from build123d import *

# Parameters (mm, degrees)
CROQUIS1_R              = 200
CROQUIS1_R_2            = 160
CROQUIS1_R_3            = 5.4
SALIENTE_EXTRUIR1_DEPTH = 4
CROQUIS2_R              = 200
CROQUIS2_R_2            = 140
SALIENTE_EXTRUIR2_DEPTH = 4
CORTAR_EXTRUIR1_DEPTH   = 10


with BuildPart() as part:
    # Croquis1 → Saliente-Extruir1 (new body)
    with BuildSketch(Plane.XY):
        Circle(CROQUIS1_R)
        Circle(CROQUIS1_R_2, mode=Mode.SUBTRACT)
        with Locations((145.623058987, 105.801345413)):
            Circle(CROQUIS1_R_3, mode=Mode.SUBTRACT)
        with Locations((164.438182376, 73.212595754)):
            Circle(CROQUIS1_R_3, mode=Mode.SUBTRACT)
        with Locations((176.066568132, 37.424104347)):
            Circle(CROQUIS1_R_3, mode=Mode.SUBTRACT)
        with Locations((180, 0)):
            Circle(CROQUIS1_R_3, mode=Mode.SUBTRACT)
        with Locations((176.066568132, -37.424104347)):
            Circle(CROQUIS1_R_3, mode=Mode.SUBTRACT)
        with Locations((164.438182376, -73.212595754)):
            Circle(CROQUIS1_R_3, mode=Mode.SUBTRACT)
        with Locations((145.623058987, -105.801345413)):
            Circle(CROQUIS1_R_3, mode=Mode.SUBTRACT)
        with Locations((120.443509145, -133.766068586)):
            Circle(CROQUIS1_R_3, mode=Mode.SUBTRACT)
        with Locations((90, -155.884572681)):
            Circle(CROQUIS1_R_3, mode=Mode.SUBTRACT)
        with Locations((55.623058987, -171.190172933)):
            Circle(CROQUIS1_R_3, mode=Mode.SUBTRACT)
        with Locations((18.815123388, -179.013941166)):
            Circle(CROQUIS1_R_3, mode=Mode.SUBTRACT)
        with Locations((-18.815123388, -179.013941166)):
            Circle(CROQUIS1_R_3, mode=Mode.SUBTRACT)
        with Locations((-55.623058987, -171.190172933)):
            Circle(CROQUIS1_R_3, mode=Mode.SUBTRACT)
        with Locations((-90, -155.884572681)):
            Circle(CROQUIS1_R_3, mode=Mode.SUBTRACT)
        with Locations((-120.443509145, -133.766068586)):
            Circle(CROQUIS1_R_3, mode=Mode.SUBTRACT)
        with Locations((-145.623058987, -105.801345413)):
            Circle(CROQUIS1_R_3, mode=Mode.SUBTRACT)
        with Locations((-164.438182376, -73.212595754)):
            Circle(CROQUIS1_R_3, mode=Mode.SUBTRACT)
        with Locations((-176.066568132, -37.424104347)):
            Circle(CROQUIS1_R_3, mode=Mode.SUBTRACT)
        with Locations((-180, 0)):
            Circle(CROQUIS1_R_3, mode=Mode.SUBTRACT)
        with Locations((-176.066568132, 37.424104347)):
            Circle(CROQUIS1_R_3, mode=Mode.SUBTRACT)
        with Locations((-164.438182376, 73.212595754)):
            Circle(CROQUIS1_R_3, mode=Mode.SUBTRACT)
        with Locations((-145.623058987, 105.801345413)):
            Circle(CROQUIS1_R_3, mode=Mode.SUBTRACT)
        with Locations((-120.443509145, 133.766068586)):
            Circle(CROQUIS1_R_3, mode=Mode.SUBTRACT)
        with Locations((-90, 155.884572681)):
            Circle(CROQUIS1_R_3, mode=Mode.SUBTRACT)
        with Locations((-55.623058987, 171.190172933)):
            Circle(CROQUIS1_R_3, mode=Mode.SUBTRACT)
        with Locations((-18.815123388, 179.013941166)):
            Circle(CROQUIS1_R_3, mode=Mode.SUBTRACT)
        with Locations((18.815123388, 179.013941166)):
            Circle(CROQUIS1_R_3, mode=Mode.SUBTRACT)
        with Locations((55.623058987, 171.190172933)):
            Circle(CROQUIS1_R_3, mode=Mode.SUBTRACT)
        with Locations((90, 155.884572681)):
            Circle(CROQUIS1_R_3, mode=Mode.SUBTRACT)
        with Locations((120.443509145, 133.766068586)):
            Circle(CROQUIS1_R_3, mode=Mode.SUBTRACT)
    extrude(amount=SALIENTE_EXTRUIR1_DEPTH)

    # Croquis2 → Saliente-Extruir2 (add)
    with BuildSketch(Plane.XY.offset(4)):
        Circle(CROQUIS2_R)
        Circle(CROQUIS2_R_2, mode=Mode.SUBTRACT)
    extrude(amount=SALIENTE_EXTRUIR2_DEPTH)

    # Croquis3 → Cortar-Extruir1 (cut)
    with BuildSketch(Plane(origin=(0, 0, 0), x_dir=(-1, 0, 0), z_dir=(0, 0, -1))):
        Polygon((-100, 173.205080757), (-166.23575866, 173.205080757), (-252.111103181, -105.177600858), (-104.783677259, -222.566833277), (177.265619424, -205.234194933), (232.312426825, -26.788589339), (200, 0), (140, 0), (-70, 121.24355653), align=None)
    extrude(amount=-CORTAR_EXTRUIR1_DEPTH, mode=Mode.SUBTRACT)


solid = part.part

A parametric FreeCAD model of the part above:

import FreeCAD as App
import Part
import Sketcher

V = App.Vector
Q = App.Units.Quantity


def add_polygon(sketch, points):
    """Adds a closed chain of lines whose ends are joined by coincident constraints."""
    first, n = sketch.GeometryCount, len(points)
    for a, b in zip(points, points[1:] + points[:1]):
        sketch.addGeometry(Part.LineSegment(App.Vector(*a, 0), App.Vector(*b, 0)), False)
    for i in range(n):
        sketch.addConstraint(Sketcher.Constraint("Coincident", first + i, 2, first + (i + 1) % n, 1))

doc = App.newDocument("Part")
body = doc.addObject("PartDesign::Body", "Body")

# Sketch on XY plane
sketch1 = body.newObject("Sketcher::SketchObject", "Sketch")
sketch1.AttachmentSupport = (doc.getObject("XY_Plane"), [""])
sketch1.MapMode = "FlatFace"
sketch1.addGeometry(Part.Circle(V(0, 0, 0), V(0, 0, 1), 200), False)
sketch1.addGeometry(Part.Circle(V(-146, -106, 0), V(0, 0, 1), 5), False)
sketch1.addGeometry(Part.Circle(V(-120, -134, 0), V(0, 0, 1), 5), False)
sketch1.addGeometry(Part.Circle(V(-56, -171, 0), V(0, 0, 1), 5), False)
sketch1.addGeometry(Part.Circle(V(-90, -156, 0), V(0, 0, 1), 5), False)
sketch1.addGeometry(Part.Circle(V(-19, -179, 0), V(0, 0, 1), 5), False)
sketch1.addGeometry(Part.Circle(V(-164, -73, 0), V(0, 0, 1), 5), False)
sketch1.addGeometry(Part.Circle(V(-176, -37, 0), V(0, 0, 1), 5), False)
sketch1.addGeometry(Part.Circle(V(-180, 0, 0), V(0, 0, 1), 5), False)
sketch1.addGeometry(Part.Circle(V(0, 0, 0), V(0, 0, 1), 160), False)
sketch1.addGeometry(Part.Circle(V(19, -179, 0), V(0, 0, 1), 5), False)
sketch1.addGeometry(Part.Circle(V(56, -171, 0), V(0, 0, 1), 5), False)
sketch1.addGeometry(Part.Circle(V(90, -156, 0), V(0, 0, 1), 5), False)
sketch1.addGeometry(Part.Circle(V(120, -134, 0), V(0, 0, 1), 5), False)
sketch1.addGeometry(Part.Circle(V(146, -106, 0), V(0, 0, 1), 5), False)
sketch1.addGeometry(Part.Circle(V(164, -73, 0), V(0, 0, 1), 5), False)
sketch1.addGeometry(Part.Circle(V(176, -37, 0), V(0, 0, 1), 5), False)
sketch1.addGeometry(Part.Circle(V(180, 0, 0), V(0, 0, 1), 5), False)
sketch1.addGeometry(Part.Circle(V(-176, 37, 0), V(0, 0, 1), 5), False)
sketch1.addGeometry(Part.Circle(V(-164, 73, 0), V(0, 0, 1), 5), False)
sketch1.addGeometry(Part.Circle(V(-146, 106, 0), V(0, 0, 1), 5), False)
sketch1.addGeometry(Part.Circle(V(-120, 134, 0), V(0, 0, 1), 5), False)
sketch1.addGeometry(Part.Circle(V(-90, 156, 0), V(0, 0, 1), 5), False)
sketch1.addGeometry(Part.Circle(V(-56, 171, 0), V(0, 0, 1), 5), False)
sketch1.addGeometry(Part.Circle(V(-19, 179, 0), V(0, 0, 1), 5), False)
sketch1.addGeometry(Part.Circle(V(176, 37, 0), V(0, 0, 1), 5), False)
sketch1.addGeometry(Part.Circle(V(164, 73, 0), V(0, 0, 1), 5), False)
sketch1.addGeometry(Part.Circle(V(19, 179, 0), V(0, 0, 1), 5), False)
sketch1.addGeometry(Part.Circle(V(90, 156, 0), V(0, 0, 1), 5), False)
sketch1.addGeometry(Part.Circle(V(56, 171, 0), V(0, 0, 1), 5), False)
sketch1.addGeometry(Part.Circle(V(120, 134, 0), V(0, 0, 1), 5), False)
sketch1.addGeometry(Part.Circle(V(146, 106, 0), V(0, 0, 1), 5), False)
sketch1.addConstraint(Sketcher.Constraint("Coincident", 0, 3, -1, 1))
sketch1.addConstraint(Sketcher.Constraint("Coincident", 9, 3, -1, 1))
sketch1.addConstraint(Sketcher.Constraint("Equal", 1, 2))
sketch1.addConstraint(Sketcher.Constraint("Equal", 2, 3))
sketch1.addConstraint(Sketcher.Constraint("Equal", 3, 4))
sketch1.addConstraint(Sketcher.Constraint("Equal", 4, 5))
sketch1.addConstraint(Sketcher.Constraint("Equal", 5, 6))
sketch1.addConstraint(Sketcher.Constraint("Equal", 6, 7))
sketch1.addConstraint(Sketcher.Constraint("Equal", 7, 8))
sketch1.addConstraint(Sketcher.Constraint("Equal", 8, 10))
sketch1.addConstraint(Sketcher.Constraint("Equal", 10, 11))
sketch1.addConstraint(Sketcher.Constraint("Equal", 11, 12))
sketch1.addConstraint(Sketcher.Constraint("Equal", 12, 13))
sketch1.addConstraint(Sketcher.Constraint("Equal", 13, 14))
sketch1.addConstraint(Sketcher.Constraint("Equal", 14, 15))
sketch1.addConstraint(Sketcher.Constraint("Equal", 15, 16))
sketch1.addConstraint(Sketcher.Constraint("Equal", 16, 17))
sketch1.addConstraint(Sketcher.Constraint("Equal", 17, 18))
sketch1.addConstraint(Sketcher.Constraint("Equal", 18, 19))
sketch1.addConstraint(Sketcher.Constraint("Equal", 19, 20))
sketch1.addConstraint(Sketcher.Constraint("Equal", 20, 21))
sketch1.addConstraint(Sketcher.Constraint("Equal", 21, 22))
sketch1.addConstraint(Sketcher.Constraint("Equal", 22, 23))
sketch1.addConstraint(Sketcher.Constraint("Equal", 23, 24))
sketch1.addConstraint(Sketcher.Constraint("Equal", 24, 25))
sketch1.addConstraint(Sketcher.Constraint("Equal", 25, 26))
sketch1.addConstraint(Sketcher.Constraint("Equal", 26, 27))
sketch1.addConstraint(Sketcher.Constraint("Equal", 27, 28))
sketch1.addConstraint(Sketcher.Constraint("Equal", 28, 29))
sketch1.addConstraint(Sketcher.Constraint("Equal", 29, 30))
sketch1.addConstraint(Sketcher.Constraint("Equal", 30, 31))
sketch1.addConstraint(Sketcher.Constraint("Symmetric", 8, 3, 17, 3, -1, 1))
sketch1.addConstraint(Sketcher.Constraint("Symmetric", 16, 3, 18, 3, -1, 1))
sketch1.addConstraint(Sketcher.Constraint("Symmetric", 15, 3, 19, 3, -1, 1))
sketch1.addConstraint(Sketcher.Constraint("Symmetric", 14, 3, 20, 3, -1, 1))
sketch1.addConstraint(Sketcher.Constraint("Symmetric", 13, 3, 21, 3, -1, 1))
sketch1.addConstraint(Sketcher.Constraint("Symmetric", 12, 3, 22, 3, -1, 1))
sketch1.addConstraint(Sketcher.Constraint("Symmetric", 11, 3, 23, 3, -1, 1))
sketch1.addConstraint(Sketcher.Constraint("Symmetric", 10, 3, 24, 3, -1, 1))
sketch1.addConstraint(Sketcher.Constraint("Symmetric", 7, 3, 25, 3, -1, 1))
sketch1.addConstraint(Sketcher.Constraint("Symmetric", 6, 3, 26, 3, -1, 1))
sketch1.addConstraint(Sketcher.Constraint("Symmetric", 5, 3, 27, 3, -1, 1))
sketch1.addConstraint(Sketcher.Constraint("Symmetric", 4, 3, 28, 3, -1, 1))
sketch1.addConstraint(Sketcher.Constraint("Symmetric", 3, 3, 29, 3, -1, 1))
sketch1.addConstraint(Sketcher.Constraint("Symmetric", 2, 3, 30, 3, -1, 1))
sketch1.addConstraint(Sketcher.Constraint("Symmetric", 1, 3, 31, 3, -1, 1))
sketch1.addConstraint(Sketcher.Constraint("Symmetric", 5, 3, 10, 3, -2))
sketch1.addConstraint(Sketcher.Constraint("Symmetric", 3, 3, 11, 3, -2))
sketch1.addConstraint(Sketcher.Constraint("Symmetric", 4, 3, 12, 3, -2))
sketch1.addConstraint(Sketcher.Constraint("Symmetric", 2, 3, 13, 3, -2))
sketch1.addConstraint(Sketcher.Constraint("Symmetric", 1, 3, 14, 3, -2))
sketch1.addConstraint(Sketcher.Constraint("Symmetric", 6, 3, 15, 3, -2))
sketch1.addConstraint(Sketcher.Constraint("Symmetric", 7, 3, 16, 3, -2))
sketch1.addConstraint(Sketcher.Constraint("PointOnObject", 8, 3, -1))
sketch1.addConstraint(Sketcher.Constraint("Diameter", 0, 400.0))
sketch1.addConstraint(Sketcher.Constraint("Diameter", 9, 320.0))
sketch1.addConstraint(Sketcher.Constraint("Diameter", 1, 10.8))
sketch1.addConstraint(Sketcher.Constraint("DistanceX", 4, 3, -1, 1, 90.0))
sketch1.addConstraint(Sketcher.Constraint("DistanceX", 8, 3, -1, 1, 180.0))
sketch1.addConstraint(Sketcher.Constraint("DistanceX", 1, 3, 3, 3, 90.0))
sketch1.addConstraint(Sketcher.Constraint("DistanceY", 3, 3, 4, 3, 15.3056))
sketch1.addConstraint(Sketcher.Constraint("DistanceY", 6, 3, 18, 3, 110.6367))
sketch1.addConstraint(Sketcher.Constraint("DistanceX", 1, 3, -1, 1, 145.623059))
sketch1.addConstraint(Sketcher.Constraint("DistanceX", 2, 3, -1, 1, 120.443509))
sketch1.addConstraint(Sketcher.Constraint("DistanceY", 2, 3, -1, 1, 133.766069))
sketch1.addConstraint(Sketcher.Constraint("DistanceY", 5, 3, -1, 1, 179.013941))
sketch1.addConstraint(Sketcher.Constraint("DistanceX", 7, 3, -1, 1, 176.066568))
sketch1.addConstraint(Sketcher.Constraint("DistanceY", 5, 3, 3, 3, 7.823768))
sketch1.addConstraint(Sketcher.Constraint("DistanceY", 1, 3, 6, 3, 32.58875))
sketch1.addConstraint(Sketcher.Constraint("DistanceX", 6, 3, 5, 3, 145.623059))
sketch1.addConstraint(Sketcher.Constraint("DistanceY", 6, 3, 7, 3, 35.788491))
sketch1.addConstraint(Sketcher.Constraint("DistanceX", 5, 3, -1, 1, 18.815123))
pad1 = body.newObject("PartDesign::Pad", "Pad")
pad1.Profile = sketch1
pad1.Length = 4

# Sketch on XY plane
sketch2 = body.newObject("Sketcher::SketchObject", "Sketch001")
sketch2.AttachmentSupport = (doc.getObject("XY_Plane"), [""])
sketch2.MapMode = "FlatFace"
sketch2.AttachmentOffset = App.Placement(V(0, 0, 4), App.Rotation())
sketch2.addGeometry(Part.Circle(V(0, 0, 0), V(0, 0, 1), 200), False)
sketch2.addGeometry(Part.Circle(V(0, 0, 0), V(0, 0, 1), 140), False)
sketch2.addConstraint(Sketcher.Constraint("Coincident", 0, 3, -1, 1))
sketch2.addConstraint(Sketcher.Constraint("Coincident", 1, 3, -1, 1))
sketch2.addConstraint(Sketcher.Constraint("Diameter", 0, 400.0))
sketch2.addConstraint(Sketcher.Constraint("Diameter", 1, 280.0))
pad2 = body.newObject("PartDesign::Pad", "Pad001")
pad2.Profile = sketch2
pad2.Length = 4

# Sketch on XY plane
sketch3 = body.newObject("Sketcher::SketchObject", "Sketch002")
sketch3.AttachmentSupport = (doc.getObject("XY_Plane"), [""])
sketch3.MapMode = "FlatFace"
add_polygon(sketch3, [(100, 173), (166, 173), (252, -105), (105, -223), (-177, -205), (-232, -27), (-200, 0), (-140, 0), (70, 121)])  # lines 0-8
sketch3.addConstraint(Sketcher.Constraint("Horizontal", 0))
sketch3.addConstraint(Sketcher.Constraint("Horizontal", 6))
sketch3.addConstraint(Sketcher.Constraint("PointOnObject", 5, 2, -1))
sketch3.addConstraint(Sketcher.Constraint("Parallel", 1, 4))
sketch3.addConstraint(Sketcher.Constraint("DistanceX", 6, 1, 6, 2, 60.0))
sketch3.addConstraint(Sketcher.Constraint("Angle", 7, Q("30 deg")))
sketch3.addConstraint(Sketcher.Constraint("Angle", 8, Q("60 deg")))
sketch3.addConstraint(Sketcher.Constraint("Distance", 8, 60.0))
sketch3.addConstraint(Sketcher.Constraint("DistanceX", 5, 2, -1, 1, 200.0))
sketch3.addConstraint(Sketcher.Constraint("DistanceX", -1, 1, 7, 2, 70.0))
sketch3.addConstraint(Sketcher.Constraint("Distance", 4, 186.743099))
sketch3.addConstraint(Sketcher.Constraint("DistanceX", 0, 1, 0, 2, 66.235759))
sketch3.addConstraint(Sketcher.Constraint("DistanceY", 1, 2, -1, 1, 105.177601))
sketch3.addConstraint(Sketcher.Constraint("Distance", 3, 282.581362))
sketch3.addConstraint(Sketcher.Constraint("DistanceX", 3, 2, -1, 1, 177.265619))
sketch3.addConstraint(Sketcher.Constraint("DistanceY", 4, 2, -1, 1, 26.788589))
sketch3.addConstraint(Sketcher.Constraint("DistanceX", 2, 2, 0, 2, 61.452081))
sketch3.addConstraint(Sketcher.Constraint("DistanceX", 4, 2, 1, 2, 484.42353))
pocket1 = body.newObject("PartDesign::Pocket", "Pocket")
pocket1.Profile = sketch3
pocket1.Length = 10
pocket1.Reversed = True

doc.recompute()
